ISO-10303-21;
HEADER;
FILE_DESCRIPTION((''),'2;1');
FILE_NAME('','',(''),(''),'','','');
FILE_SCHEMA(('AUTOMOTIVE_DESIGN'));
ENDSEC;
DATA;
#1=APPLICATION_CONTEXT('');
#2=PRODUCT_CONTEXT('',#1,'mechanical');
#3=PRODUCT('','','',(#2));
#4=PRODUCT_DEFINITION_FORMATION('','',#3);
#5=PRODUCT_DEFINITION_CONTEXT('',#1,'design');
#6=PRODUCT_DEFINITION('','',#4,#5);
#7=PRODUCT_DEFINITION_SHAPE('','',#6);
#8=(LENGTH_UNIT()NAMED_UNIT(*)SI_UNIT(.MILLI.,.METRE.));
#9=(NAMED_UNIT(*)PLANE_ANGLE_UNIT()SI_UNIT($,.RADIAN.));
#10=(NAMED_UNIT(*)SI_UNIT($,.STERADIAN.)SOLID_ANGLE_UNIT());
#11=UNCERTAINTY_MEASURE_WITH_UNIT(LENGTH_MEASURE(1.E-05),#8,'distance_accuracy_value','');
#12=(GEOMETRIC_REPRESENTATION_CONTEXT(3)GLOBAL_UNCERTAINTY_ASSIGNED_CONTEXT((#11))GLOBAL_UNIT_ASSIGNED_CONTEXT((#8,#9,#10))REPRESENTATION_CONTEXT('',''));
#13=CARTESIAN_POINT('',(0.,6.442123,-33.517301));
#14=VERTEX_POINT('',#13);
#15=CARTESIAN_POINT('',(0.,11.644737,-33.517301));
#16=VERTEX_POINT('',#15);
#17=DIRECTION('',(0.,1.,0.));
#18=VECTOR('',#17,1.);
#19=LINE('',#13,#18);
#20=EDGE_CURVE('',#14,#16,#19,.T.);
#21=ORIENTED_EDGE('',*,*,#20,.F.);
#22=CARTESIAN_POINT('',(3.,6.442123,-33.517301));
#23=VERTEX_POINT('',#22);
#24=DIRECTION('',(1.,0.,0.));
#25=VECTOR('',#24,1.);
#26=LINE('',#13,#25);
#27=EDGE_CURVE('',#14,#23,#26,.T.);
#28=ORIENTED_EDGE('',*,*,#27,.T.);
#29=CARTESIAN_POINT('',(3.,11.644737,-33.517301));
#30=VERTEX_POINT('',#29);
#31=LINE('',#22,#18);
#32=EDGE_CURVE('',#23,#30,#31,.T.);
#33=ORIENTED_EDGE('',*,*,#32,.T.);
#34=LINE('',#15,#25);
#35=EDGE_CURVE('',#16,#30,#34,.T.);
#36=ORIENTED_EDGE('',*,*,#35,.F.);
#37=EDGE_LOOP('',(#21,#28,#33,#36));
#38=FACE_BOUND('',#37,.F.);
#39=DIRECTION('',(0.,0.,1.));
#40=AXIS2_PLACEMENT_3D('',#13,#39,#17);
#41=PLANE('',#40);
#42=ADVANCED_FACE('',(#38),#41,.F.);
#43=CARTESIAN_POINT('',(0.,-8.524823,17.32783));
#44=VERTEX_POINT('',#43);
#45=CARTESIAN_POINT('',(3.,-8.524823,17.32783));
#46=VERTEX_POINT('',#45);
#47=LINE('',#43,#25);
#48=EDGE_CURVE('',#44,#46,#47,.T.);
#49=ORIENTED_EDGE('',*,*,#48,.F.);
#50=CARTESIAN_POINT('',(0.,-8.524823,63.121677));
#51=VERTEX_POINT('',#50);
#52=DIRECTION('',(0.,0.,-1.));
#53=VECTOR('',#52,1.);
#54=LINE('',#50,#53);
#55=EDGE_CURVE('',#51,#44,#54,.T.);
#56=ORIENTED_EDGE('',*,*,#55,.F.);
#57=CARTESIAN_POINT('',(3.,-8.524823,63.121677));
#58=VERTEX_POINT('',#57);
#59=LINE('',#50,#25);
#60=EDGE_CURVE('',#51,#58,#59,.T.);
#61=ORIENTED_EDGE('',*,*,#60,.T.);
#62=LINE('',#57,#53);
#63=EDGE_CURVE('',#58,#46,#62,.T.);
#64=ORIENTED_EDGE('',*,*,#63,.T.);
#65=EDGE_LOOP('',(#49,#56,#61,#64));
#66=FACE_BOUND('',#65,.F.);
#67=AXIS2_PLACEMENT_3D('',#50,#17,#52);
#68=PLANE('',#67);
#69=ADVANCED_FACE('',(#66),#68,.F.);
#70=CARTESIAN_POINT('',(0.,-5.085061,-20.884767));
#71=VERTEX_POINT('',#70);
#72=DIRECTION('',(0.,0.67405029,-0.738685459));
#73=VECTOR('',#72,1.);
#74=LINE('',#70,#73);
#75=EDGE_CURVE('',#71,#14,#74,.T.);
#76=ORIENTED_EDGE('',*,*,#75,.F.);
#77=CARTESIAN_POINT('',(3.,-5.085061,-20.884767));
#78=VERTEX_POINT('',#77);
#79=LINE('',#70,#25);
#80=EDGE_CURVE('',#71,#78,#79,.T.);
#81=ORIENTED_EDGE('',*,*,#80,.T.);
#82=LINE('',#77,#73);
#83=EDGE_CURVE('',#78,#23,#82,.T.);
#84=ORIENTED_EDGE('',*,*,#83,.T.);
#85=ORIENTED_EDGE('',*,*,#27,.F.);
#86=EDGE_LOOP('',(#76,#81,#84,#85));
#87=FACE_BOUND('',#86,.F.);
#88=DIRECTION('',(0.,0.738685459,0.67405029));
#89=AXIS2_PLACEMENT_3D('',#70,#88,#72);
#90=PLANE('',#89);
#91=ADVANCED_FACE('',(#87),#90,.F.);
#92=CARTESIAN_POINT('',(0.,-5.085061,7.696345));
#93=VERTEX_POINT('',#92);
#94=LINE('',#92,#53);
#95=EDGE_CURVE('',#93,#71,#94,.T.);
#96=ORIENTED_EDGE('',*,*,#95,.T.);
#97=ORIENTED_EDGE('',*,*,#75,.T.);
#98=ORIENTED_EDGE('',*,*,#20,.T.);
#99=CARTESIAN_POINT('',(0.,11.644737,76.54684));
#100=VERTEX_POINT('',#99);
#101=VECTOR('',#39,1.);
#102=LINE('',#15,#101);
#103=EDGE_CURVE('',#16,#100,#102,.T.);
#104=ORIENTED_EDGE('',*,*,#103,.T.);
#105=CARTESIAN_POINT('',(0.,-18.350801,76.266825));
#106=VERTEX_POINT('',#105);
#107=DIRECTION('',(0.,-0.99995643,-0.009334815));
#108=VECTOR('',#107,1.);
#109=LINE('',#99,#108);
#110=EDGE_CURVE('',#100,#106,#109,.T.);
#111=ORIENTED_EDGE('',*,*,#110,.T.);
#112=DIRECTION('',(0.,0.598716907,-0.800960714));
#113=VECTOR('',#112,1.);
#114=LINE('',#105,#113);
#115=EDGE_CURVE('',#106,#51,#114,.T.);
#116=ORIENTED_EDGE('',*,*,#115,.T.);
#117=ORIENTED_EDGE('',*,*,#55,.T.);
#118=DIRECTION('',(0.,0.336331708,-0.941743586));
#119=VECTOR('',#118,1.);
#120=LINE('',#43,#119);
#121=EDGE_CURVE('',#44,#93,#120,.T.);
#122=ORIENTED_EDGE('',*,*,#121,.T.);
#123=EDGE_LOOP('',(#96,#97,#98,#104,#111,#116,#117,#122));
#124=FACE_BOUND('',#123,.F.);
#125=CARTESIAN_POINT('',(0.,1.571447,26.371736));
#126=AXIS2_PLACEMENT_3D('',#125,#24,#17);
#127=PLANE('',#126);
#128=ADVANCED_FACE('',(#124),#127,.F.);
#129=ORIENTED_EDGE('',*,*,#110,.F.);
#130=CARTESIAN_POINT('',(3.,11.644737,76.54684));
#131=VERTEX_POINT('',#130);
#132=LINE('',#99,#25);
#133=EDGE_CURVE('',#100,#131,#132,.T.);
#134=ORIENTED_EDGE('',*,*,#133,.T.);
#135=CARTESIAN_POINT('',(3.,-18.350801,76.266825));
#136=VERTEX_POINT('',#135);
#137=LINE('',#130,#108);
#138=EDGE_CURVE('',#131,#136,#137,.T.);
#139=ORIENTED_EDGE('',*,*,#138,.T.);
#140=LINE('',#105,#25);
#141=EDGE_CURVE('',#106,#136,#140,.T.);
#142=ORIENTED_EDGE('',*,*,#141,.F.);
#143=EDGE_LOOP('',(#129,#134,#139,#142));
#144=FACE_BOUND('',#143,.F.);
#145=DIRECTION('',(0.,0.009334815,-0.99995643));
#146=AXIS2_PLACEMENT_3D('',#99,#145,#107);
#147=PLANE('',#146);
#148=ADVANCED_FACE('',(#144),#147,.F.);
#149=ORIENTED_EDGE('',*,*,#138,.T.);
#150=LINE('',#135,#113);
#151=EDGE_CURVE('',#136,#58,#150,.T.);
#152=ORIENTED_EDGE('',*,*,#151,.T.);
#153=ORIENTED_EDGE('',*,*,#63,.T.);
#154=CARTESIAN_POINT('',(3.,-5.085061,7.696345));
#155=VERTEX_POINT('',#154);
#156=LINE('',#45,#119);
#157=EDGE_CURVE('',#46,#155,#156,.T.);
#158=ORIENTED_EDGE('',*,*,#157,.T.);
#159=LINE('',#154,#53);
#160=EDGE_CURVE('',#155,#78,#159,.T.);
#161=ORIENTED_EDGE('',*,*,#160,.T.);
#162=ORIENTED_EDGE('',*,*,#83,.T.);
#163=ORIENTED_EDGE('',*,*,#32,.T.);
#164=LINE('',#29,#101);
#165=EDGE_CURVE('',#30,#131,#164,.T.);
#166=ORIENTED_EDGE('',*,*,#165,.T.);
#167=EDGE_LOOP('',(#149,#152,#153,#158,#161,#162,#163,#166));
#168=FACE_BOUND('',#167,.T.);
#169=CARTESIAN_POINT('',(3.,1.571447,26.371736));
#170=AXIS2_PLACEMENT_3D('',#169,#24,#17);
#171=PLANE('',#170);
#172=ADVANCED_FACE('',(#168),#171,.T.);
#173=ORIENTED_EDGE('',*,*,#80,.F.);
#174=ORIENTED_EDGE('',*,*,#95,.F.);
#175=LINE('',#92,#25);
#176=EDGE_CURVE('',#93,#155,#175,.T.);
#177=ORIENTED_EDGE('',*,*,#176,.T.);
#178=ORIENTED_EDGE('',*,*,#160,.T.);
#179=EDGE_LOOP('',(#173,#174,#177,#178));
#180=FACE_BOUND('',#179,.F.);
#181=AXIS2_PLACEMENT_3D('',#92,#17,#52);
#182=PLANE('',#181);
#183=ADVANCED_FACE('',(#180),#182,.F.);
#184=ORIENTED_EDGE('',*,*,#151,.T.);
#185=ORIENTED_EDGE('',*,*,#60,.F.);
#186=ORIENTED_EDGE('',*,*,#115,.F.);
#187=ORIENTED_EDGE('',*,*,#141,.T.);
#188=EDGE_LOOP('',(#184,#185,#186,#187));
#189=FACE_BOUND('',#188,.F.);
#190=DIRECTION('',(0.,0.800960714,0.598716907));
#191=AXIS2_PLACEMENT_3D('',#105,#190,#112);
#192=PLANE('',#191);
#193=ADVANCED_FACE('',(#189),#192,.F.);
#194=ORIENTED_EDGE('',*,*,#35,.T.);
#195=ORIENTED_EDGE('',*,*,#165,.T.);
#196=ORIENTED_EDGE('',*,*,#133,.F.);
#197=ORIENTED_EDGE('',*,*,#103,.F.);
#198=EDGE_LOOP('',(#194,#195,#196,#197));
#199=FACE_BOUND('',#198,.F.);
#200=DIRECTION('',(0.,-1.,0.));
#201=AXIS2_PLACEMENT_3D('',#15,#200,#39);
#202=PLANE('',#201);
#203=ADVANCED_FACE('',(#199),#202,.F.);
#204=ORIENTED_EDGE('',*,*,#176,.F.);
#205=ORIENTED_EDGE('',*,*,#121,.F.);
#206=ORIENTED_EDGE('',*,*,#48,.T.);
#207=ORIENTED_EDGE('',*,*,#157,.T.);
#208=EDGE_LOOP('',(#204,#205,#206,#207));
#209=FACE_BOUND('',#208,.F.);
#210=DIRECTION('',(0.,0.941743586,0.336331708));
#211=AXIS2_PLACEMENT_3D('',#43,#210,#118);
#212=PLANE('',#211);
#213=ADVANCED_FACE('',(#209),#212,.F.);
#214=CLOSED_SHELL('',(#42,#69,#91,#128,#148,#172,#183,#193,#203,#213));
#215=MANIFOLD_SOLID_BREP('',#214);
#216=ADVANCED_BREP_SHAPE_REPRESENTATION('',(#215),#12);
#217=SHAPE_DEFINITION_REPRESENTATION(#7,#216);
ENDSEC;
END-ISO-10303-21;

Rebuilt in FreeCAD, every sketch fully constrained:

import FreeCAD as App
import Part
import Sketcher

V = App.Vector
Q = App.Units.Quantity


def add_polygon(sketch, points):
    """Adds a closed chain of lines whose ends are joined by coincident constraints."""
    first, n = sketch.GeometryCount, len(points)
    for a, b in zip(points, points[1:] + points[:1]):
        sketch.addGeometry(Part.LineSegment(App.Vector(*a, 0), App.Vector(*b, 0)), False)
    for i in range(n):
        sketch.addConstraint(Sketcher.Constraint("Coincident", first + i, 2, first + (i + 1) % n, 1))

doc = App.newDocument("Part")
params = doc.addObject("Spreadsheet::Sheet", "Params")
for row, (alias, value) in enumerate([
    ("pad1_length", "3 mm"),
], start=1):
    params.set(f"A{row}", alias)
    params.set(f"B{row}", "=" + value)
    params.setAlias(f"B{row}", alias)

body = doc.addObject("PartDesign::Body", "Body")

# Sketch on YZ plane
sketch1 = body.newObject("Sketcher::SketchObject", "Sketch")
sketch1.AttachmentSupport = (doc.getObject("YZ_Plane"), [""])
sketch1.MapMode = "FlatFace"
add_polygon(sketch1, [(6.442123, -33.517301), (11.644737, -33.517301), (11.644737, 76.54684), (-18.350801, 76.266825), (-8.524823, 63.121677), (-8.524823, 17.32783), (-5.085061, 7.696345), (-5.085061, -20.884767)])  # lines 0-7
sketch1.addConstraint(Sketcher.Constraint("Horizontal", 0))
sketch1.addConstraint(Sketcher.Constraint("Vertical", 1))
sketch1.addConstraint(Sketcher.Constraint("Vertical", 4))
sketch1.addConstraint(Sketcher.Constraint("Vertical", 6))
sketch1.addConstraint(Sketcher.Constraint("DistanceY", 1, 1, 1, 2, Q("110.064141 mm")))
sketch1.addConstraint(Sketcher.Constraint("DistanceY", 0, 2, -1, 1, Q("33.517301 mm")))
sketch1.addConstraint(Sketcher.Constraint("DistanceX", 2, 2, -1, 1, Q("18.350801 mm")))
sketch1.addConstraint(Sketcher.Constraint("Distance", 5, Q("10.22729 mm")))
sketch1.addConstraint(Sketcher.Constraint("Distance", 7, Q("17.101371 mm")))
sketch1.addConstraint(Sketcher.Constraint("DistanceX", 0, 1, 0, 2, Q("5.202614 mm")))
sketch1.addConstraint(Sketcher.Constraint("DistanceY", 4, 2, 4, 1, Q("45.793847 mm")))
sketch1.addConstraint(Sketcher.Constraint("DistanceY", 6, 2, 6, 1, Q("28.581112 mm")))
sketch1.addConstraint(Sketcher.Constraint("DistanceY", -1, 1, 4, 2, Q("17.32783 mm")))
sketch1.addConstraint(Sketcher.Constraint("DistanceX", 5, 2, -1, 1, Q("5.085061 mm")))
sketch1.addConstraint(Sketcher.Constraint("DistanceX", 2, 2, 1, 2, Q("29.995538 mm")))
sketch1.addConstraint(Sketcher.Constraint("DistanceY", 5, 2, 2, 2, Q("68.57048 mm")))
pad1 = body.newObject("PartDesign::Pad", "Pad")
pad1.Profile = sketch1
pad1.setExpression("Length", "Params.pad1_length")

doc.recompute()
